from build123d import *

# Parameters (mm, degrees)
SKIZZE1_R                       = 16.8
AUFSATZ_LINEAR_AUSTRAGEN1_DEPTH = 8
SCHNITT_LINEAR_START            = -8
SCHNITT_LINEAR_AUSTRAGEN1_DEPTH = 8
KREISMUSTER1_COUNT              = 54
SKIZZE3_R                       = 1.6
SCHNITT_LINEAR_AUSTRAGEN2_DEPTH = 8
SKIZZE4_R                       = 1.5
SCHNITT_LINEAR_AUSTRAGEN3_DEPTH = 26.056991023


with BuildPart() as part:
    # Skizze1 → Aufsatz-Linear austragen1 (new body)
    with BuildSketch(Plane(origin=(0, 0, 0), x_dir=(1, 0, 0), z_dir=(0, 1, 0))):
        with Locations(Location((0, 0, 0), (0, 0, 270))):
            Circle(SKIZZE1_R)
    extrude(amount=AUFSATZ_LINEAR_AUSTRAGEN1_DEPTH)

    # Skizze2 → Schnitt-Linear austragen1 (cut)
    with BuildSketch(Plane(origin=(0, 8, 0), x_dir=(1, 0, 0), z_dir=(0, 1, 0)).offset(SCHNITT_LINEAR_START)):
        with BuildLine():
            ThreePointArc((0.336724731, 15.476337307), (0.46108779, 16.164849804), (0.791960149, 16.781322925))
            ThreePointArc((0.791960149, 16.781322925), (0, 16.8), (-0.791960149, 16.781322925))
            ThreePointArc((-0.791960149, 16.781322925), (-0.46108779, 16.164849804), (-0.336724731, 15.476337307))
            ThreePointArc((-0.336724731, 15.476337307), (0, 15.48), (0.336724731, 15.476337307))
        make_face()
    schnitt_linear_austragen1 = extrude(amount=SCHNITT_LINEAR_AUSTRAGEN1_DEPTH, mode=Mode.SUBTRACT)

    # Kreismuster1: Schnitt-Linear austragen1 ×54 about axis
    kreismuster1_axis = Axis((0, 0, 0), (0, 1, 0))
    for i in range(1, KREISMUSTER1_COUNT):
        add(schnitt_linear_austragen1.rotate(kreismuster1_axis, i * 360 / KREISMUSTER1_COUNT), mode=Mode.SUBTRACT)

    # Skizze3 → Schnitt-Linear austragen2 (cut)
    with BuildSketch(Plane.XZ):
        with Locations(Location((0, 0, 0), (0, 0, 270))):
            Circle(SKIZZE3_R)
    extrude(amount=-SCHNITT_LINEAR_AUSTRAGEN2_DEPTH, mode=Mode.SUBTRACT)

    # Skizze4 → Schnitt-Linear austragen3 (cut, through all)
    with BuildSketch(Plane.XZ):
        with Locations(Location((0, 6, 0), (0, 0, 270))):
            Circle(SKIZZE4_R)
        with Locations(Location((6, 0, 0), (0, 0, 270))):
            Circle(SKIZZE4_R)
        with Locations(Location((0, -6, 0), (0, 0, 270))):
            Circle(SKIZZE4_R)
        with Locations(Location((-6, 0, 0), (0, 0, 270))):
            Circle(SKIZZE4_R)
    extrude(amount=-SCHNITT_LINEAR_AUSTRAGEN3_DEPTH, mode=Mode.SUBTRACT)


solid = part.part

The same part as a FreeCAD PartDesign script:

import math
import FreeCAD as App
import Part
import Sketcher
from FreeCAD import Vector
Q = App.Units.Quantity

doc = App.newDocument("Part")
params = doc.addObject("Spreadsheet::Sheet", "Params")
for row, (alias, value) in enumerate([
    ("sketch1_diameter", "33.6 mm"),
    ("pad1_length", "8 mm"),
    ("sketch2_radius", "16.8 mm"),
    ("pocket1_length", "8 mm"),
    ("sketch3_diameter", "3.2 mm"),
    ("pocket2_length", "8 mm"),
    ("sketch4_diameter", "3 mm"),
], start=1):
    params.set(f"A{row}", alias)
    params.set(f"B{row}", "=" + value)
    params.setAlias(f"B{row}", alias)

body = doc.addObject("PartDesign::Body", "Body")

# Sketch on XZ plane
sketch1 = body.newObject("Sketcher::SketchObject", "Sketch")
sketch1.AttachmentSupport = (doc.getObject("XZ_Plane"), [""])
sketch1.MapMode = "FlatFace"
sketch1.addGeometry(Part.Circle(Vector(0, 0, 0), Vector(0, 0, 1), 16.8), False)
sketch1.addConstraint(Sketcher.Constraint("Coincident", 0, 3, -1, 1))
sketch1.addConstraint(Sketcher.Constraint("Diameter", 0, Q("33.6 mm")))
sketch1.setExpression("Constraints[1]", "Params.sketch1_diameter")
pad1 = body.newObject("PartDesign::Pad", "Pad")
pad1.Profile = sketch1
pad1.setExpression("Length", "Params.pad1_length")
pad1.Reversed = True

# Sketch on XZ plane
sketch2 = body.newObject("Sketcher::SketchObject", "Sketch001")
sketch2.AttachmentSupport = (doc.getObject("XZ_Plane"), [""])
sketch2.MapMode = "FlatFace"
sketch2.addGeometry(Part.ArcOfCircle(Part.Circle(Vector(2.57435, -15.427652, 0), Vector(0, 0, 1), 2.238155), math.radians(-178.75359), math.radians(-142.784449)), False)
sketch2.addGeometry(Part.ArcOfCircle(Part.Circle(Vector(0, 0, 0), Vector(0, 0, 1), 16.8), math.radians(-92.701952), math.radians(-87.298048)), False)
sketch2.addGeometry(Part.ArcOfCircle(Part.Circle(Vector(-2.57435, -15.427652, 0), Vector(0, 0, 1), 2.238155), math.radians(-37.215551), math.radians(-1.24641)), False)
sketch2.addGeometry(Part.ArcOfCircle(Part.Circle(Vector(0, -0.000002, 0), Vector(0, 0, 1), 15.479998), math.radians(-91.24641), math.radians(-88.75359)), False)
sketch2.addConstraint(Sketcher.Constraint("Coincident", 0, 2, 1, 2))
sketch2.addConstraint(Sketcher.Constraint("Coincident", 1, 1, 2, 1))
sketch2.addConstraint(Sketcher.Constraint("Coincident", 2, 2, 3, 1))
sketch2.addConstraint(Sketcher.Constraint("Coincident", 3, 2, 0, 1))
sketch2.addConstraint(Sketcher.Constraint("Coincident", 1, 3, -1, 1))
sketch2.addConstraint(Sketcher.Constraint("Coincident", 3, 3, -1, 1))
sketch2.addConstraint(Sketcher.Constraint("Equal", 0, 2))
sketch2.addConstraint(Sketcher.Constraint("Symmetric", 0, 3, 2, 3, -2))
sketch2.addConstraint(Sketcher.Constraint("Radius", 1, Q("16.8 mm")))
sketch2.addConstraint(Sketcher.Constraint("Radius", 0, Q("2.238155 mm")))
sketch2.addConstraint(Sketcher.Constraint("Radius", 3, Q("15.479998 mm")))
sketch2.addConstraint(Sketcher.Constraint("DistanceX", 2, 3, 0, 3, Q("5.148701 mm")))
sketch2.addConstraint(Sketcher.Constraint("DistanceX", -1, 1, 0, 2, Q("0.79196 mm")))
sketch2.setExpression("Constraints[8]", "Params.sketch2_radius")
pocket1 = body.newObject("PartDesign::Pocket", "Pocket")
pocket1.Profile = sketch2
pocket1.setExpression("Length", "Params.pocket1_length")
doc.recompute()

polarpattern = body.newObject("PartDesign::PolarPattern", "PolarPattern")
polarpattern.Originals = [pocket1]
polarpattern.Axis = (doc.getObject("Y_Axis"), [""])
polarpattern.Angle = 360
polarpattern.Occurrences = 54
body.Tip = polarpattern

# Sketch on XZ plane
sketch3 = body.newObject("Sketcher::SketchObject", "Sketch002")
sketch3.AttachmentSupport = (doc.getObject("XZ_Plane"), [""])
sketch3.MapMode = "FlatFace"
sketch3.addGeometry(Part.Circle(Vector(0, 0, 0), Vector(0, 0, 1), 1.6), False)
sketch3.addConstraint(Sketcher.Constraint("Coincident", 0, 3, -1, 1))
sketch3.addConstraint(Sketcher.Constraint("Diameter", 0, Q("3.2 mm")))
sketch3.setExpression("Constraints[1]", "Params.sketch3_diameter")
pocket2 = body.newObject("PartDesign::Pocket", "Pocket001")
pocket2.Profile = sketch3
pocket2.setExpression("Length", "Params.pocket2_length")

# Sketch on XZ plane
sketch4 = body.newObject("Sketcher::SketchObject", "Sketch003")
sketch4.AttachmentSupport = (doc.getObject("XZ_Plane"), [""])
sketch4.MapMode = "FlatFace"
sketch4.addGeometry(Part.Circle(Vector(0, 6, 0), Vector(0, 0, 1), 1.5), False)
sketch4.addGeometry(Part.Circle(Vector(6, 0, 0), Vector(0, 0, 1), 1.5), False)
sketch4.addGeometry(Part.Circle(Vector(0, -6, 0), Vector(0, 0, 1), 1.5), False)
sketch4.addGeometry(Part.Circle(Vector(-6, 0, 0), Vector(0, 0, 1), 1.5), False)
sketch4.addConstraint(Sketcher.Constraint("Equal", 0, 1))
sketch4.addConstraint(Sketcher.Constraint("Equal", 1, 2))
sketch4.addConstraint(Sketcher.Constraint("Equal", 2, 3))
sketch4.addConstraint(Sketcher.Constraint("Symmetric", 0, 3, 2, 3, -1, 1))
sketch4.addConstraint(Sketcher.Constraint("Symmetric", 1, 3, 3, 3, -1, 1))
sketch4.addConstraint(Sketcher.Constraint("PointOnObject", 0, 3, -2))
sketch4.addConstraint(Sketcher.Constraint("PointOnObject", 1, 3, -1))
sketch4.addConstraint(Sketcher.Constraint("Diameter", 0, Q("3 mm")))
sketch4.addConstraint(Sketcher.Constraint("DistanceY", -1, 1, 0, 3, Q("6 mm")))
sketch4.addConstraint(Sketcher.Constraint("DistanceX", -1, 1, 1, 3, Q("6 mm")))
sketch4.setExpression("Constraints[7]", "Params.sketch4_diameter")
pocket3 = body.newObject("PartDesign::Pocket", "Pocket002")
pocket3.Profile = sketch4
pocket3.Type = "ThroughAll"

doc.recompute()
